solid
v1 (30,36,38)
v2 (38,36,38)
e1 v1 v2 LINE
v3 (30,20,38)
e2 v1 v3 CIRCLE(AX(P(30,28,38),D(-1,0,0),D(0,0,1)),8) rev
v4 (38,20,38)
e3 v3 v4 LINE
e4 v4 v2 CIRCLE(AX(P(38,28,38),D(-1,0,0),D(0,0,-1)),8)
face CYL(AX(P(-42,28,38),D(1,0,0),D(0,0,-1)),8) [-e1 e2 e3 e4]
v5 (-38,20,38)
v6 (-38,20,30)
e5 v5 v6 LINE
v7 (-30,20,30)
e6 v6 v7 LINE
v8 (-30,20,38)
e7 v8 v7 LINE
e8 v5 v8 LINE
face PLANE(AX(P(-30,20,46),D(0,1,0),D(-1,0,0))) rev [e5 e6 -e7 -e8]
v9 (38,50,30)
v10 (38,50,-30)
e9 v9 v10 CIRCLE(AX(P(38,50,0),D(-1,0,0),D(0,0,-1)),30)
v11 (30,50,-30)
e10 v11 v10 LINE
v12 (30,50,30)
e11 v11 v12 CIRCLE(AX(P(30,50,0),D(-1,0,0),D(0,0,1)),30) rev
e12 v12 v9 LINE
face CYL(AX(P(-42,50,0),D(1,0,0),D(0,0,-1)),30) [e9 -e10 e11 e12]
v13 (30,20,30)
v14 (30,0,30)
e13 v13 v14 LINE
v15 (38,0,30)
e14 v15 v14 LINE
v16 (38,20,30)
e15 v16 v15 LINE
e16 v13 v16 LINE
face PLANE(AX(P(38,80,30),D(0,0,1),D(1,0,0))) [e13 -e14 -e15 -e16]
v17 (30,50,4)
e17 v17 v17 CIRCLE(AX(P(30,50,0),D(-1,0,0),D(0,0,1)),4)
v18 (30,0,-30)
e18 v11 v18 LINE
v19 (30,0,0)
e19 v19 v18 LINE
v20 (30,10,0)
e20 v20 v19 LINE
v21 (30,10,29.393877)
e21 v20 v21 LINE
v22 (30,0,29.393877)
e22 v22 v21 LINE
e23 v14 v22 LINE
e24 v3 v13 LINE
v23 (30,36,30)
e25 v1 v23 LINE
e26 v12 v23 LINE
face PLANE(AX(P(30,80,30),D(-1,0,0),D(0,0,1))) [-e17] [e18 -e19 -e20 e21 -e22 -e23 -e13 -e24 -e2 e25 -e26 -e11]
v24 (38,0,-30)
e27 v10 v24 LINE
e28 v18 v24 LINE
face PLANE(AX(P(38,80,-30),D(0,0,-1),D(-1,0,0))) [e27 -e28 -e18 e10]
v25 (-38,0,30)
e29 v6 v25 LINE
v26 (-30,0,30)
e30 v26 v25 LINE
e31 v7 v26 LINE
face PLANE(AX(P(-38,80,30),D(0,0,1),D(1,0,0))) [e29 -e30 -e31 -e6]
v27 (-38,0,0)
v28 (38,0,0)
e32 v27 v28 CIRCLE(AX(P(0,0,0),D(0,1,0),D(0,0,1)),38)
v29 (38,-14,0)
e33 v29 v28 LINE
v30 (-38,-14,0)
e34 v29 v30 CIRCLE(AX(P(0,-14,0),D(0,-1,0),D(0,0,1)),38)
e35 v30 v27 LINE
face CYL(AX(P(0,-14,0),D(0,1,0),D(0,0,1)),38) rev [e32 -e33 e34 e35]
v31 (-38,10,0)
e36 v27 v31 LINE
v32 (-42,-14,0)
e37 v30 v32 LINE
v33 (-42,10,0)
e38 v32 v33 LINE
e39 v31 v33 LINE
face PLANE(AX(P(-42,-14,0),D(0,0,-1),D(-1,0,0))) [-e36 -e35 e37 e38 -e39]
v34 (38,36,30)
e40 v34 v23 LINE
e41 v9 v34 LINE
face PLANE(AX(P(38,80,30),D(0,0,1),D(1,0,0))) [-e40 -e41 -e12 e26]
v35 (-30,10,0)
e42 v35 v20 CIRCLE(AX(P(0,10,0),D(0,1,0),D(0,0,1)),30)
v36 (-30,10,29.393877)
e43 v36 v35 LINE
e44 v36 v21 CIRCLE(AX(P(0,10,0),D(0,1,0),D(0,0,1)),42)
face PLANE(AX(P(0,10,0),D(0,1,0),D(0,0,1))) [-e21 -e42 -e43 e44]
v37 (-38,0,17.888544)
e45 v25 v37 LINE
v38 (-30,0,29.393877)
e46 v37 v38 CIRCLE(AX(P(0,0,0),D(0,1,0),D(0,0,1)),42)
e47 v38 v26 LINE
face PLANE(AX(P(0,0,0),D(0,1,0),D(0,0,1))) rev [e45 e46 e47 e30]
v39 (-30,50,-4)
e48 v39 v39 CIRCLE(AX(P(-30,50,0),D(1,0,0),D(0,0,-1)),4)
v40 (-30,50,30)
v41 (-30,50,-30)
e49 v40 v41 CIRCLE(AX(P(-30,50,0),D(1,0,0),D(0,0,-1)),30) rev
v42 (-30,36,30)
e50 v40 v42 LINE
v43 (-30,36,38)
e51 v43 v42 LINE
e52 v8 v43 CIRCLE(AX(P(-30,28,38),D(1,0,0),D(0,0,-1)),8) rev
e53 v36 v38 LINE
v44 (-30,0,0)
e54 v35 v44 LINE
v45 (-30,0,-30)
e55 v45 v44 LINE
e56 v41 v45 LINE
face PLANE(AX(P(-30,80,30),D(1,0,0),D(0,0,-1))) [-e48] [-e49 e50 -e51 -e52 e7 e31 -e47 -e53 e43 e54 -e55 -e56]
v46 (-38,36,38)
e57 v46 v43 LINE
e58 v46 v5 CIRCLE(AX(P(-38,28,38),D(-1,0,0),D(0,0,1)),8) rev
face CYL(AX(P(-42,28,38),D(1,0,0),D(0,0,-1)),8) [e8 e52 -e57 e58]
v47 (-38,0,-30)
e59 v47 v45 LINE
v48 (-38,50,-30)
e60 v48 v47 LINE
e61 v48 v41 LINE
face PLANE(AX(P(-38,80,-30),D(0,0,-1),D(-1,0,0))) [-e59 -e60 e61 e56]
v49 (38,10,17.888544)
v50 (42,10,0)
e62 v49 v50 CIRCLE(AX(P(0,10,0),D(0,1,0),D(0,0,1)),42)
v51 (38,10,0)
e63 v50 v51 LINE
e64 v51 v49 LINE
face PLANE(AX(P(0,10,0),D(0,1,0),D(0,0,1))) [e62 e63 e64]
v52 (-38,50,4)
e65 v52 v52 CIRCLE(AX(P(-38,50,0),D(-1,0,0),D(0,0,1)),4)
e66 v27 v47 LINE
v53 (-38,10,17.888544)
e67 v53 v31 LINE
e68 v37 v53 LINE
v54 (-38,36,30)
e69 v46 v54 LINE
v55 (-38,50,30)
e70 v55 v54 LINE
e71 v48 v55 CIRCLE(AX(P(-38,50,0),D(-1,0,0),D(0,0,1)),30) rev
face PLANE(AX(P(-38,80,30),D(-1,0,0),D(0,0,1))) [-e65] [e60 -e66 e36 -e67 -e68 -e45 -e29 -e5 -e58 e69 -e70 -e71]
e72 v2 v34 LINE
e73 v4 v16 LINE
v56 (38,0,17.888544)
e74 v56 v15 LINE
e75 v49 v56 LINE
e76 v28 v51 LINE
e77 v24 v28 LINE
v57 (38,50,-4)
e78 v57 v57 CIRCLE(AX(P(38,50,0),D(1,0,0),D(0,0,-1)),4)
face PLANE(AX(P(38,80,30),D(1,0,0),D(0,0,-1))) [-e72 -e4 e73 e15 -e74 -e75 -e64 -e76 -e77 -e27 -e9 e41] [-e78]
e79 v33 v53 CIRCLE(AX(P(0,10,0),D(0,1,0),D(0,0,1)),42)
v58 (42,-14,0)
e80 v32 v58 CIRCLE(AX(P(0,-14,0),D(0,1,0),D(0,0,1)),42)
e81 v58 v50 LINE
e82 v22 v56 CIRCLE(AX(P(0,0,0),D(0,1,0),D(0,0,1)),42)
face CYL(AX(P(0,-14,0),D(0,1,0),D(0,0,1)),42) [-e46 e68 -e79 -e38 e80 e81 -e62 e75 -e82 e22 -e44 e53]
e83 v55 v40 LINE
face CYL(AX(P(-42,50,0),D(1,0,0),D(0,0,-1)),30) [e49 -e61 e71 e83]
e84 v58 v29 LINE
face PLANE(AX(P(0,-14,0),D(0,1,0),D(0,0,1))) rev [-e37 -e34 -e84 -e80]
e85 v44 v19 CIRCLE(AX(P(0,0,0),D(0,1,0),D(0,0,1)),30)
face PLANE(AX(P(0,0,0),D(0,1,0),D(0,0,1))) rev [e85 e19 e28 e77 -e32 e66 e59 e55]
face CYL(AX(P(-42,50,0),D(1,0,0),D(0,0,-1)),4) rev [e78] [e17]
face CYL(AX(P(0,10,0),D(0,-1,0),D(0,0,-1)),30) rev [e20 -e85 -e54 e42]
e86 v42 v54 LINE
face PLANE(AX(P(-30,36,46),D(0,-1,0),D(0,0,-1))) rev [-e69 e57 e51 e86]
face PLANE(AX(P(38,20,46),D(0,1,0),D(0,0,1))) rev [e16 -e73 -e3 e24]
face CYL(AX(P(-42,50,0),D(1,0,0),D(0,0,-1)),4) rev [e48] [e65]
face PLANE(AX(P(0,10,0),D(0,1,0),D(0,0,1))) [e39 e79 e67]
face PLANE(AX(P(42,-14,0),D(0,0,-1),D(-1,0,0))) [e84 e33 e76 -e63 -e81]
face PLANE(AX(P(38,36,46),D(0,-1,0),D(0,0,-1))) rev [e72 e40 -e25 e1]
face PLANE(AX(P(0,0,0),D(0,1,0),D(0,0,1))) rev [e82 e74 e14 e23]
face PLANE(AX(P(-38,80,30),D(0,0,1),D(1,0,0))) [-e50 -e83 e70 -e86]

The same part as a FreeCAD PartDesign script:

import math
import FreeCAD as App
import Part
import Sketcher
from FreeCAD import Vector
Q = App.Units.Quantity


def add_polygon(sketch, points):
    """Adds a closed chain of lines whose ends are joined by coincident constraints."""
    first, n = sketch.GeometryCount, len(points)
    for a, b in zip(points, points[1:] + points[:1]):
        sketch.addGeometry(Part.LineSegment(App.Vector(*a, 0), App.Vector(*b, 0)), False)
    for i in range(n):
        sketch.addConstraint(Sketcher.Constraint("Coincident", first + i, 2, first + (i + 1) % n, 1))

doc = App.newDocument("Part")
body = doc.addObject("PartDesign::Body", "Body")

# Sketch on XZ plane
sketch1 = body.newObject("Sketcher::SketchObject", "Sketch")
sketch1.AttachmentSupport = (doc.getObject("XZ_Plane"), [""])
sketch1.MapMode = "FlatFace"
sketch1.addGeometry(Part.Circle(Vector(0, 0, 0), Vector(0, 0, 1), 38), False)
sketch1.addGeometry(Part.Circle(Vector(0, 0, 0), Vector(0, 0, 1), 30), False)
sketch1.addConstraint(Sketcher.Constraint("Coincident", 0, 3, -1, 1))
sketch1.addConstraint(Sketcher.Constraint("Coincident", 1, 3, -1, 1))
sketch1.addConstraint(Sketcher.Constraint("Diameter", 0, Q("76 mm")))
sketch1.addConstraint(Sketcher.Constraint("Diameter", 1, Q("60 mm")))
pad1 = body.newObject("PartDesign::Pad", "Pad")
pad1.Profile = sketch1
pad1.Length = 10
pad1.Reversed = True

# Sketch on XZ plane
sketch2 = body.newObject("Sketcher::SketchObject", "Sketch001")
sketch2.AttachmentSupport = (doc.getObject("XZ_Plane"), [""])
sketch2.MapMode = "FlatFace"
add_polygon(sketch2, [(-38, 30), (-38, -30), (-30, -30), (-30, 30)])  # lines 0-3
add_polygon(sketch2, [(30, 30), (30, -30), (38, -30), (38, 30)])  # lines 4-7
sketch2.addConstraint(Sketcher.Constraint("Vertical", 0))
sketch2.addConstraint(Sketcher.Constraint("Horizontal", 1))
sketch2.addConstraint(Sketcher.Constraint("Vertical", 2))
sketch2.addConstraint(Sketcher.Constraint("Horizontal", 3))
sketch2.addConstraint(Sketcher.Constraint("Vertical", 4))
sketch2.addConstraint(Sketcher.Constraint("Horizontal", 5))
sketch2.addConstraint(Sketcher.Constraint("Vertical", 6))
sketch2.addConstraint(Sketcher.Constraint("Horizontal", 7))
sketch2.addConstraint(Sketcher.Constraint("Symmetric", 2, 2, 4, 2, -1, 1))
sketch2.addConstraint(Sketcher.Constraint("Symmetric", 0, 2, 6, 2, -1, 1))
sketch2.addConstraint(Sketcher.Constraint("Horizontal", 1, 2, 4, 2))
sketch2.addConstraint(Sketcher.Constraint("DistanceX", 1, 1, 1, 2, Q("8 mm")))
sketch2.addConstraint(Sketcher.Constraint("DistanceY", 0, 2, 0, 1, Q("60 mm")))
sketch2.addConstraint(Sketcher.Constraint("DistanceX", 0, 2, -1, 1, Q("38 mm")))
pad2 = body.newObject("PartDesign::Pad", "Pad001")
pad2.Profile = sketch2
pad2.Length = 80
pad2.Reversed = True

# Sketch on YZ plane
sketch3 = body.newObject("Sketcher::SketchObject", "Sketch002")
sketch3.AttachmentSupport = (doc.getObject("YZ_Plane"), [""])
sketch3.MapMode = "FlatFace"
sketch3.AttachmentOffset = App.Placement(Vector(0, 0, 38), App.Rotation())
sketch3.addGeometry(Part.Circle(Vector(50, 0, 0), Vector(0, 0, 1), 4), False)
sketch3.addGeometry(Part.LineSegment(Vector(88, 30, 0), Vector(50, 30, 0)), False)
sketch3.addGeometry(Part.ArcOfCircle(Part.Circle(Vector(50, 0, 0), Vector(0, 0, 1), 30), math.radians(-90), math.radians(90)), False)
sketch3.addGeometry(Part.LineSegment(Vector(50, -30, 0), Vector(88, -30, 0)), False)
sketch3.addGeometry(Part.LineSegment(Vector(88, -30, 0), Vector(88, 30, 0)), False)
sketch3.addConstraint(Sketcher.Constraint("Tangent", 1, 2, 2, 2))
sketch3.addConstraint(Sketcher.Constraint("Tangent", 2, 1, 3, 1))
sketch3.addConstraint(Sketcher.Constraint("Coincident", 3, 2, 4, 1))
sketch3.addConstraint(Sketcher.Constraint("Coincident", 4, 2, 1, 1))
sketch3.addConstraint(Sketcher.Constraint("Horizontal", 1))
sketch3.addConstraint(Sketcher.Constraint("Horizontal", 3))
sketch3.addConstraint(Sketcher.Constraint("Vertical", 4))
sketch3.addConstraint(Sketcher.Constraint("Coincident", 2, 3, 0, 3))
sketch3.addConstraint(Sketcher.Constraint("PointOnObject", 0, 3, -1))
sketch3.addConstraint(Sketcher.Constraint("Diameter", 0, Q("8 mm")))
sketch3.addConstraint(Sketcher.Constraint("Radius", 2, Q("30 mm")))
sketch3.addConstraint(Sketcher.Constraint("DistanceX", 1, 2, 1, 1, Q("38 mm")))
sketch3.addConstraint(Sketcher.Constraint("DistanceX", -1, 1, 0, 3, Q("50 mm")))
pocket1 = body.newObject("PartDesign::Pocket", "Pocket")
pocket1.Profile = sketch3
pocket1.Length = 80

# Sketch on XZ plane
sketch4 = body.newObject("Sketcher::SketchObject", "Sketch003")
sketch4.AttachmentSupport = (doc.getObject("XZ_Plane"), [""])
sketch4.MapMode = "FlatFace"
add_polygon(sketch4, [(-30, 0), (-30, -41), (30, -41), (30, 0)])  # lines 0-3
sketch4.addConstraint(Sketcher.Constraint("Vertical", 0))
sketch4.addConstraint(Sketcher.Constraint("Horizontal", 1))
sketch4.addConstraint(Sketcher.Constraint("Vertical", 2))
sketch4.addConstraint(Sketcher.Constraint("Horizontal", 3))
sketch4.addConstraint(Sketcher.Constraint("Symmetric", 2, 2, 3, 2, -1, 1))
sketch4.addConstraint(Sketcher.Constraint("DistanceX", 1, 1, 1, 2, Q("60 mm")))
sketch4.addConstraint(Sketcher.Constraint("DistanceY", 0, 2, 0, 1, Q("40.67812 mm")))
pocket2 = body.newObject("PartDesign::Pocket", "Pocket001")
pocket2.Profile = sketch4
pocket2.Type = "ThroughAll"

# Sketch on XZ plane
sketch5 = body.newObject("Sketcher::SketchObject", "Sketch004")
sketch5.AttachmentSupport = (doc.getObject("XZ_Plane"), [""])
sketch5.MapMode = "FlatFace"
sketch5.AttachmentOffset = App.Placement(Vector(0, 0, -10), App.Rotation())
sketch5.addGeometry(Part.LineSegment(Vector(42, 0, 0), Vector(38, 0, 0)), False)
sketch5.addGeometry(Part.ArcOfCircle(Part.Circle(Vector(0, 0, 0), Vector(0, 0, 1), 38), math.radians(0), math.radians(180)), False)
sketch5.addGeometry(Part.LineSegment(Vector(-38, 0, 0), Vector(-42, 0, 0)), False)
sketch5.addGeometry(Part.ArcOfCircle(Part.Circle(Vector(0, 0, 0), Vector(0, 0, 1), 42), math.radians(0), math.radians(180)), False)
sketch5.addConstraint(Sketcher.Constraint("Coincident", 0, 2, 1, 1))
sketch5.addConstraint(Sketcher.Constraint("Coincident", 1, 2, 2, 1))
sketch5.addConstraint(Sketcher.Constraint("Coincident", 2, 2, 3, 2))
sketch5.addConstraint(Sketcher.Constraint("Coincident", 3, 1, 0, 1))
sketch5.addConstraint(Sketcher.Constraint("Horizontal", 0))
sketch5.addConstraint(Sketcher.Constraint("Horizontal", 2))
sketch5.addConstraint(Sketcher.Constraint("Coincident", 1, 3, -1, 1))
sketch5.addConstraint(Sketcher.Constraint("Coincident", 3, 3, -1, 1))
sketch5.addConstraint(Sketcher.Constraint("PointOnObject", 0, 2, -1))
sketch5.addConstraint(Sketcher.Constraint("PointOnObject", 1, 2, -1))
sketch5.addConstraint(Sketcher.Constraint("Radius", 1, Q("38 mm")))
sketch5.addConstraint(Sketcher.Constraint("Radius", 3, Q("42 mm")))
pad3 = body.newObject("PartDesign::Pad", "Pad002")
pad3.Profile = sketch5
pad3.Length = 24

# Sketch on XY plane
sketch6 = body.newObject("Sketcher::SketchObject", "Sketch005")
sketch6.AttachmentSupport = (doc.getObject("XY_Plane"), [""])
sketch6.MapMode = "FlatFace"
sketch6.AttachmentOffset = App.Placement(Vector(0, 0, 30), App.Rotation())
add_polygon(sketch6, [(-38, 36), (-38, 20), (-30, 20), (-30, 36)])  # lines 0-3
add_polygon(sketch6, [(30, 36), (30, 20), (38, 20), (38, 36)])  # lines 4-7
sketch6.addConstraint(Sketcher.Constraint("Vertical", 0))
sketch6.addConstraint(Sketcher.Constraint("Horizontal", 1))
sketch6.addConstraint(Sketcher.Constraint("Vertical", 2))
sketch6.addConstraint(Sketcher.Constraint("Horizontal", 3))
sketch6.addConstraint(Sketcher.Constraint("Vertical", 4))
sketch6.addConstraint(Sketcher.Constraint("Horizontal", 5))
sketch6.addConstraint(Sketcher.Constraint("Vertical", 6))
sketch6.addConstraint(Sketcher.Constraint("Horizontal", 7))
sketch6.addConstraint(Sketcher.Constraint("Symmetric", 1, 2, 4, 2, -2))
sketch6.addConstraint(Sketcher.Constraint("Symmetric", 3, 2, 6, 2, -2))
sketch6.addConstraint(Sketcher.Constraint("DistanceX", 1, 1, 1, 2, Q("8 mm")))
sketch6.addConstraint(Sketcher.Constraint("DistanceY", 0, 2, 0, 1, Q("16 mm")))
sketch6.addConstraint(Sketcher.Constraint("DistanceX", 0, 2, -1, 1, Q("38 mm")))
sketch6.addConstraint(Sketcher.Constraint("DistanceY", -1, 1, 0, 2, Q("20 mm")))
pad4 = body.newObject("PartDesign::Pad", "Pad003")
pad4.Profile = sketch6
pad4.Length = 16

# Sketch on YZ plane
sketch7 = body.newObject("Sketcher::SketchObject", "Sketch006")
sketch7.AttachmentSupport = (doc.getObject("YZ_Plane"), [""])
sketch7.MapMode = "FlatFace"
sketch7.AttachmentOffset = App.Placement(Vector(0, 0, 38), App.Rotation())
sketch7.addGeometry(Part.LineSegment(Vector(36, 38, 0), Vector(36, 50, 0)), False)
sketch7.addGeometry(Part.LineSegment(Vector(36, 50, 0), Vector(20, 50, 0)), False)
sketch7.addGeometry(Part.LineSegment(Vector(20, 50, 0), Vector(20, 38, 0)), False)
sketch7.addGeometry(Part.ArcOfCircle(Part.Circle(Vector(28, 38, 0), Vector(0, 0, 1), 8), math.radians(0), math.radians(180)), False)
sketch7.addConstraint(Sketcher.Constraint("Coincident", 0, 2, 1, 1))
sketch7.addConstraint(Sketcher.Constraint("Coincident", 1, 2, 2, 1))
sketch7.addConstraint(Sketcher.Constraint("Tangent", 2, 2, 3, 2))
sketch7.addConstraint(Sketcher.Constraint("Tangent", 3, 1, 0, 1))
sketch7.addConstraint(Sketcher.Constraint("Vertical", 0))
sketch7.addConstraint(Sketcher.Constraint("Horizontal", 1))
sketch7.addConstraint(Sketcher.Constraint("Vertical", 2))
sketch7.addConstraint(Sketcher.Constraint("Radius", 3, Q("8 mm")))
sketch7.addConstraint(Sketcher.Constraint("DistanceX", -1, 1, 3, 3, Q("28 mm")))
sketch7.addConstraint(Sketcher.Constraint("DistanceY", -1, 1, 3, 3, Q("38 mm")))
sketch7.addConstraint(Sketcher.Constraint("DistanceY", 0, 1, 0, 2, Q("11.790151 mm")))
pocket3 = body.newObject("PartDesign::Pocket", "Pocket002")
pocket3.Profile = sketch7
pocket3.Type = "ThroughAll"

doc.recompute()
